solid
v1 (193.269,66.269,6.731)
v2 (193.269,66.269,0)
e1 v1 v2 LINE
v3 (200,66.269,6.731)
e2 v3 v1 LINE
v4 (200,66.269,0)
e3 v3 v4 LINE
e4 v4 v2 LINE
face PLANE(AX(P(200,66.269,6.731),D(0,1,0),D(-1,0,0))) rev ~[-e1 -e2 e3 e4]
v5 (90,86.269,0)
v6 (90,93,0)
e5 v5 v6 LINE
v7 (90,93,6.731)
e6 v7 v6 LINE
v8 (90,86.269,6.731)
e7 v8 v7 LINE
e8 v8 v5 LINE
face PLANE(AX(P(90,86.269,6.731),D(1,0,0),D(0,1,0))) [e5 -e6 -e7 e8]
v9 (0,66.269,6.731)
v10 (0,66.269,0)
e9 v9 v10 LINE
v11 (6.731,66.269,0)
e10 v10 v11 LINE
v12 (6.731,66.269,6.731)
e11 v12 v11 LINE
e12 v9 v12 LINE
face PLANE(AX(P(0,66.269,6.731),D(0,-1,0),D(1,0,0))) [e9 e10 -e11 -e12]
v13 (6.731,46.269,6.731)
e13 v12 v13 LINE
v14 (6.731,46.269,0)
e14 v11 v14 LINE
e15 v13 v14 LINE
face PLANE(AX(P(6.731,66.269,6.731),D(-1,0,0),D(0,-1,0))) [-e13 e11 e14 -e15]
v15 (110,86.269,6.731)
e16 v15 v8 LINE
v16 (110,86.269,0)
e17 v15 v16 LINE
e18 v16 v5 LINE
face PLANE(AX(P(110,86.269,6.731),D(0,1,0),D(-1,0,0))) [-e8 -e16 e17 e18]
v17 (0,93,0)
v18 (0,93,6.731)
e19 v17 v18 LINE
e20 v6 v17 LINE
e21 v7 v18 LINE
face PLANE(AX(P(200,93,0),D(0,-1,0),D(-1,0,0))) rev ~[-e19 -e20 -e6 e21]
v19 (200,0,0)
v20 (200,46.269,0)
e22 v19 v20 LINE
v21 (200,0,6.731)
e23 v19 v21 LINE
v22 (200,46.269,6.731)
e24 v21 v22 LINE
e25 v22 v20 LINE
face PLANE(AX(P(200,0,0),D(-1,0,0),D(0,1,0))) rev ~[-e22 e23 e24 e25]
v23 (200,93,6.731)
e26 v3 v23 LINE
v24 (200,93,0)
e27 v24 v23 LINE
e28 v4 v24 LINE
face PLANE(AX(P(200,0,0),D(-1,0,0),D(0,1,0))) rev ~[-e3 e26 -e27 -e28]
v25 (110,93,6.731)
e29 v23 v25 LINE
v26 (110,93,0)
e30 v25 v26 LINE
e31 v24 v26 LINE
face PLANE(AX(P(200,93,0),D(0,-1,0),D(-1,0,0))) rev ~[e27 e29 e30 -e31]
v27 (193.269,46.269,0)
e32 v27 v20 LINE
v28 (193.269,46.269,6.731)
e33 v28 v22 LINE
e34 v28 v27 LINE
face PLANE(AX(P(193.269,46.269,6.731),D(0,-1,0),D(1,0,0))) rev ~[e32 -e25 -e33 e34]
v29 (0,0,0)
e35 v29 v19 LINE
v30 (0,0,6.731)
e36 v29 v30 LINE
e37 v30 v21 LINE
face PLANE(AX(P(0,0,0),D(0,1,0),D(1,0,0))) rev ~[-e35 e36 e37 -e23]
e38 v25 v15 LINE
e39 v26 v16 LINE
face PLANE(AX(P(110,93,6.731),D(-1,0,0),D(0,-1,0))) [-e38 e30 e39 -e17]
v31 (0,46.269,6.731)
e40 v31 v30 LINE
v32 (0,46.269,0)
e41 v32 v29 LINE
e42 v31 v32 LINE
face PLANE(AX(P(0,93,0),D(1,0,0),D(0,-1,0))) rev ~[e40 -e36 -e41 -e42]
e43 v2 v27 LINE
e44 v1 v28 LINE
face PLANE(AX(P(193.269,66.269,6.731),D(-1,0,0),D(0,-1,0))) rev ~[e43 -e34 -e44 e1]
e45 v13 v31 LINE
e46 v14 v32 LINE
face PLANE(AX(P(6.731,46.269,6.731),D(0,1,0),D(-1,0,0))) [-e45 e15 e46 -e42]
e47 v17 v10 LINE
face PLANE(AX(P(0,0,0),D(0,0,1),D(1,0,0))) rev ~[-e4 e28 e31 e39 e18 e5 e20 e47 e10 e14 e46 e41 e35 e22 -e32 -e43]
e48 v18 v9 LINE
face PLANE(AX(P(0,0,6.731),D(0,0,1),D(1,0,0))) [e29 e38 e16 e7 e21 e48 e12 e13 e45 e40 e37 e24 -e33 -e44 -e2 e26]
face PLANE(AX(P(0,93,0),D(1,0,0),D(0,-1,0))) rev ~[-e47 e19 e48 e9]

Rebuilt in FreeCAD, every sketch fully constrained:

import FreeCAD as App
import Part
import Sketcher
from FreeCAD import Vector

doc = App.newDocument("Part")
body = doc.addObject("PartDesign::Body", "Body")

# Sketch on XY plane
sketch1 = doc.addObject("Sketcher::SketchObject", "Sketch")
body.addObject(sketch1)
sketch1.AttachmentSupport = (doc.XY_Plane, [""])
sketch1.MapMode = "FlatFace"
sketch1.addGeometry(Part.LineSegment(Vector(0, 93, 0), Vector(0, 0, 0)), False)
sketch1.addGeometry(Part.LineSegment(Vector(0, 0, 0), Vector(200, 0, 0)), False)
sketch1.addGeometry(Part.LineSegment(Vector(200, 0, 0), Vector(200, 93, 0)), False)
sketch1.addGeometry(Part.LineSegment(Vector(200, 93, 0), Vector(0, 93, 0)), False)
sketch1.addConstraint(Sketcher.Constraint("Coincident", 0, 2, 1, 1))
sketch1.addConstraint(Sketcher.Constraint("Coincident", 1, 2, 2, 1))
sketch1.addConstraint(Sketcher.Constraint("Coincident", 2, 2, 3, 1))
sketch1.addConstraint(Sketcher.Constraint("Coincident", 3, 2, 0, 1))
sketch1.addConstraint(Sketcher.Constraint("Vertical", 0))
sketch1.addConstraint(Sketcher.Constraint("Horizontal", 1))
sketch1.addConstraint(Sketcher.Constraint("Vertical", 2))
sketch1.addConstraint(Sketcher.Constraint("Horizontal", 3))
sketch1.addConstraint(Sketcher.Constraint("Coincident", 0, 2, -1, 1))
sketch1.addConstraint(Sketcher.Constraint("DistanceX", 1, 1, 1, 2, 200.0))
sketch1.addConstraint(Sketcher.Constraint("DistanceY", 0, 2, 0, 1, 93.0))
pad1 = doc.addObject("PartDesign::Pad", "Pad")
body.addObject(pad1)
pad1.Profile = sketch1
pad1.Length = 6.731

# Sketch on XY plane
sketch2 = doc.addObject("Sketcher::SketchObject", "Sketch001")
body.addObject(sketch2)
sketch2.AttachmentSupport = (doc.XY_Plane, [""])
sketch2.MapMode = "FlatFace"
sketch2.AttachmentOffset = App.Placement(Vector(0, 0, 6.731), App.Rotation())
sketch2.addGeometry(Part.LineSegment(Vector(193, 46, 0), Vector(200, 46, 0)), False)
sketch2.addGeometry(Part.LineSegment(Vector(200, 46, 0), Vector(200, 66, 0)), False)
sketch2.addGeometry(Part.LineSegment(Vector(200, 66, 0), Vector(193, 66, 0)), False)
sketch2.addGeometry(Part.LineSegment(Vector(193, 66, 0), Vector(193, 46, 0)), False)
sketch2.addGeometry(Part.LineSegment(Vector(7, 66, 0), Vector(0, 66, 0)), False)
sketch2.addGeometry(Part.LineSegment(Vector(0, 66, 0), Vector(0, 46, 0)), False)
sketch2.addGeometry(Part.LineSegment(Vector(0, 46, 0), Vector(7, 46, 0)), False)
sketch2.addGeometry(Part.LineSegment(Vector(7, 46, 0), Vector(7, 66, 0)), False)
sketch2.addGeometry(Part.LineSegment(Vector(110, 86, 0), Vector(110, 93, 0)), False)
sketch2.addGeometry(Part.LineSegment(Vector(110, 93, 0), Vector(90, 93, 0)), False)
sketch2.addGeometry(Part.LineSegment(Vector(90, 93, 0), Vector(90, 86, 0)), False)
sketch2.addGeometry(Part.LineSegment(Vector(90, 86, 0), Vector(110, 86, 0)), False)
sketch2.addConstraint(Sketcher.Constraint("Coincident", 0, 2, 1, 1))
sketch2.addConstraint(Sketcher.Constraint("Coincident", 1, 2, 2, 1))
sketch2.addConstraint(Sketcher.Constraint("Coincident", 2, 2, 3, 1))
sketch2.addConstraint(Sketcher.Constraint("Coincident", 3, 2, 0, 1))
sketch2.addConstraint(Sketcher.Constraint("Coincident", 4, 2, 5, 1))
sketch2.addConstraint(Sketcher.Constraint("Coincident", 5, 2, 6, 1))
sketch2.addConstraint(Sketcher.Constraint("Coincident", 6, 2, 7, 1))
sketch2.addConstraint(Sketcher.Constraint("Coincident", 7, 2, 4, 1))
sketch2.addConstraint(Sketcher.Constraint("Coincident", 8, 2, 9, 1))
sketch2.addConstraint(Sketcher.Constraint("Coincident", 9, 2, 10, 1))
sketch2.addConstraint(Sketcher.Constraint("Coincident", 10, 2, 11, 1))
sketch2.addConstraint(Sketcher.Constraint("Coincident", 11, 2, 8, 1))
sketch2.addConstraint(Sketcher.Constraint("Horizontal", 0))
sketch2.addConstraint(Sketcher.Constraint("Vertical", 1))
sketch2.addConstraint(Sketcher.Constraint("Horizontal", 2))
sketch2.addConstraint(Sketcher.Constraint("Vertical", 3))
sketch2.addConstraint(Sketcher.Constraint("Horizontal", 4))
sketch2.addConstraint(Sketcher.Constraint("Vertical", 5))
sketch2.addConstraint(Sketcher.Constraint("Horizontal", 6))
sketch2.addConstraint(Sketcher.Constraint("Vertical", 7))
sketch2.addConstraint(Sketcher.Constraint("Vertical", 8))
sketch2.addConstraint(Sketcher.Constraint("Horizontal", 9))
sketch2.addConstraint(Sketcher.Constraint("Vertical", 10))
sketch2.addConstraint(Sketcher.Constraint("Horizontal", 11))
sketch2.addConstraint(Sketcher.Constraint("PointOnObject", 4, 2, -2))
sketch2.addConstraint(Sketcher.Constraint("Horizontal", 2, 2, 4, 2))
sketch2.addConstraint(Sketcher.Constraint("Horizontal", 3, 2, 5, 2))
sketch2.addConstraint(Sketcher.Constraint("Equal", 2, 4))
sketch2.addConstraint(Sketcher.Constraint("Equal", 11, 1))
sketch2.addConstraint(Sketcher.Constraint("Equal", 6, 8))
sketch2.addConstraint(Sketcher.Constraint("DistanceX", 9, 2, 9, 1, 20.0))
sketch2.addConstraint(Sketcher.Constraint("DistanceY", 7, 2, 10, 2, 20.0))
sketch2.addConstraint(Sketcher.Constraint("DistanceX", 0, 1, 0, 2, 6.731))
sketch2.addConstraint(Sketcher.Constraint("DistanceX", -1, 1, 0, 2, 200.0))
sketch2.addConstraint(Sketcher.Constraint("DistanceX", -1, 1, 8, 2, 110.0))
sketch2.addConstraint(Sketcher.Constraint("DistanceY", -1, 1, 8, 2, 93.0))
pocket1 = doc.addObject("PartDesign::Pocket", "Pocket")
body.addObject(pocket1)
pocket1.Profile = sketch2
pocket1.Length = 6.731

doc.recompute()
